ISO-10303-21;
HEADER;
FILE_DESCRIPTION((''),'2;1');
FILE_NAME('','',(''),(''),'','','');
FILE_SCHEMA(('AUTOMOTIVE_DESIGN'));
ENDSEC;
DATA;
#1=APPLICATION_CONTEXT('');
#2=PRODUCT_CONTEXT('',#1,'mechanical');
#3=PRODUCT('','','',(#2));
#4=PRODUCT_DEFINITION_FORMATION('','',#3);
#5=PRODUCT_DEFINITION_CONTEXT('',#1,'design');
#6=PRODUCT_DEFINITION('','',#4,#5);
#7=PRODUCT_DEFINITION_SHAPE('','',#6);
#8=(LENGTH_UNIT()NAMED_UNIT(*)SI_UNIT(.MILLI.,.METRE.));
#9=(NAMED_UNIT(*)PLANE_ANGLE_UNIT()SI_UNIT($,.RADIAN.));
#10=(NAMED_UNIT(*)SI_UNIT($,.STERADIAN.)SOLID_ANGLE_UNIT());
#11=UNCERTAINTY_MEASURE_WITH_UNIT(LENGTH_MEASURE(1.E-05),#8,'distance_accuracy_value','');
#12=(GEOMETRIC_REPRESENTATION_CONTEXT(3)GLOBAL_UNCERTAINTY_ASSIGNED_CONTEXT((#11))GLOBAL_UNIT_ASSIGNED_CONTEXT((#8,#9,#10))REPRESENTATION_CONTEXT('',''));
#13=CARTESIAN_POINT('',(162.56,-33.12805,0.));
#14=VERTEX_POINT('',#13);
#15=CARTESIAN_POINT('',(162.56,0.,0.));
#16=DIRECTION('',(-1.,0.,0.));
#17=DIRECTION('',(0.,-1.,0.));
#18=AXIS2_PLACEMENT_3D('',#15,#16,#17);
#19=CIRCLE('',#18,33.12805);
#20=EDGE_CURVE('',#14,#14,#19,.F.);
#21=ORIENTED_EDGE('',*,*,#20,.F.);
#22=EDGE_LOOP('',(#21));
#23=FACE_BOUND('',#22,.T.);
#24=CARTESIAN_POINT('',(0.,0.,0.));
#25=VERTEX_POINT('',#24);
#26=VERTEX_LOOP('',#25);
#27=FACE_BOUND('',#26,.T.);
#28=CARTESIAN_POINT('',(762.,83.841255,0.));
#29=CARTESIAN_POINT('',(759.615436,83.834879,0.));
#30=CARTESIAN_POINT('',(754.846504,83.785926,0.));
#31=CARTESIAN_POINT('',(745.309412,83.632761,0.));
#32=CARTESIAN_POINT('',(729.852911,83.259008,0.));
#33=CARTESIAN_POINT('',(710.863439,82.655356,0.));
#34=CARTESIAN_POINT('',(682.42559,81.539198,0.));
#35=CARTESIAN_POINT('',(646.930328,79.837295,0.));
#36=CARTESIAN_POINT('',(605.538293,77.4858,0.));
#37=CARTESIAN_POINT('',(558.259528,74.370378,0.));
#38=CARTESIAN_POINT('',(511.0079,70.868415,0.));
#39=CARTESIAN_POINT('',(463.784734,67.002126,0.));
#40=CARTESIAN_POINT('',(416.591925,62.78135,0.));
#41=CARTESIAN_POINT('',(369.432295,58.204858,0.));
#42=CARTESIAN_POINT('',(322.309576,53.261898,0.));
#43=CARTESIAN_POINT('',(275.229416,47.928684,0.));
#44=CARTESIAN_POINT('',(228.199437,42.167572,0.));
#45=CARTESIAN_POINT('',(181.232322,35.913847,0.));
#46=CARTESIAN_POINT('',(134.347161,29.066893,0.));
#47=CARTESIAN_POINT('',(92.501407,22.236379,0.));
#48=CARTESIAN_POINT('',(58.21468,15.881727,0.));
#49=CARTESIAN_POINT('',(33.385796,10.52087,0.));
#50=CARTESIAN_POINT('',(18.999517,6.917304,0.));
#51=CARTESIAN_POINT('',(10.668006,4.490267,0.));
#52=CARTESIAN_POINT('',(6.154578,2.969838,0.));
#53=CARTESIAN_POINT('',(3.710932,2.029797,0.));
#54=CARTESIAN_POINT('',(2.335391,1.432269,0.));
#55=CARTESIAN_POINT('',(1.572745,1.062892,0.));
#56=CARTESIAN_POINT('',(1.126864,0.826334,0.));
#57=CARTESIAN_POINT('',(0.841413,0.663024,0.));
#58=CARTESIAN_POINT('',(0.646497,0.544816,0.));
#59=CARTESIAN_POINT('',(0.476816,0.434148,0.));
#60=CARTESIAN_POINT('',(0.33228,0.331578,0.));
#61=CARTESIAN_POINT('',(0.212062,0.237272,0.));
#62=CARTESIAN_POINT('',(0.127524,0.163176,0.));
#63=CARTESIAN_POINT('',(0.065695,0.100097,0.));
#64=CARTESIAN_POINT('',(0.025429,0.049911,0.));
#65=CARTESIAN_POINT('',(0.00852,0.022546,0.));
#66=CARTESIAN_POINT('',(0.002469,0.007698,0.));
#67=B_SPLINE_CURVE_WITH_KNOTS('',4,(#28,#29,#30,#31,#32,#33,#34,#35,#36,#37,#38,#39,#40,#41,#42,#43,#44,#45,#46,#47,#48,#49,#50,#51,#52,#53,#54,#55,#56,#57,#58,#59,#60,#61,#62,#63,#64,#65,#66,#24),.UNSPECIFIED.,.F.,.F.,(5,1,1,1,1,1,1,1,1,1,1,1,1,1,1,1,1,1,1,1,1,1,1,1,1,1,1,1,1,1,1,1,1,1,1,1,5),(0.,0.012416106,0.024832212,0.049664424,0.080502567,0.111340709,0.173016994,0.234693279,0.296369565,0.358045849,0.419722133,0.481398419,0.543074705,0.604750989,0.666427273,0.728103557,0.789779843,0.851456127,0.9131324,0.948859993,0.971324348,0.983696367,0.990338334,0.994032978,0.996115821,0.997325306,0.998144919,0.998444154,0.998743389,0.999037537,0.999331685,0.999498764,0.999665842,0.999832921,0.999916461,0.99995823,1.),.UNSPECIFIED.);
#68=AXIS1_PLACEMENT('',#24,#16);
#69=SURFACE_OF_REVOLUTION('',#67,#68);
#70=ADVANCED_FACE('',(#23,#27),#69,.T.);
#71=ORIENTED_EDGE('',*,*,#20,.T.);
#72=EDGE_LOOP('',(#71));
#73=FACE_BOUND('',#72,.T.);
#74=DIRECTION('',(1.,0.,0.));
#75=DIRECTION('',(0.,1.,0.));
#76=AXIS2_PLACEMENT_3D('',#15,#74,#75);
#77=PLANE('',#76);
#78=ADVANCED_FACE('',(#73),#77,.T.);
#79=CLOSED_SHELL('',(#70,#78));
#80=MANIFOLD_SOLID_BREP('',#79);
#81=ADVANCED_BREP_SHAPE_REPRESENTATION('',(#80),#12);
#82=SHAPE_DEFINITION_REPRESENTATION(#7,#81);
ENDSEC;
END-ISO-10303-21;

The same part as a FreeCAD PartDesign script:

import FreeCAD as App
import Part
import Sketcher
from FreeCAD import Vector
Q = App.Units.Quantity

doc = App.newDocument("Part")
body = doc.addObject("PartDesign::Body", "Body")

sketch1 = body.newObject("Sketcher::SketchObject", "Sketch")
sketch1.AttachmentSupport = (doc.getObject("XY_Plane"), [""])
sketch1.MapMode = "FlatFace"
sketch1.addGeometry(Part.LineSegment(Vector(762, 0, 0), Vector(762, 83.841255, 0)), False)
sketch1.addGeometry(Part.BSplineCurve([Vector(0, 0, 0), Vector(0.002469, 0.007698, 0), Vector(0.00852, 0.022546, 0), Vector(0.025429, 0.049911, 0), Vector(0.065695, 0.100097, 0), Vector(0.127524, 0.163176, 0), Vector(0.212062, 0.237272, 0), Vector(0.33228, 0.331578, 0), Vector(0.476816, 0.434148, 0), Vector(0.646497, 0.544816, 0), Vector(0.841413, 0.663024, 0), Vector(1.126864, 0.826334, 0), Vector(1.572745, 1.062892, 0), Vector(2.335391, 1.432269, 0), Vector(3.710932, 2.029797, 0), Vector(6.154578, 2.969838, 0), Vector(10.668006, 4.490267, 0), Vector(18.999517, 6.917304, 0), Vector(33.385796, 10.52087, 0), Vector(58.21468, 15.881727, 0), Vector(92.501407, 22.236379, 0), Vector(134.347161, 29.066893, 0), Vector(181.232322, 35.913847, 0), Vector(228.199437, 42.167572, 0), Vector(275.229416, 47.928684, 0), Vector(322.309576, 53.261898, 0), Vector(369.432295, 58.204858, 0), Vector(416.591925, 62.78135, 0), Vector(463.784734, 67.002126, 0), Vector(511.0079, 70.868415, 0), Vector(558.259528, 74.370378, 0), Vector(605.538293, 77.4858, 0), Vector(646.930328, 79.837295, 0), Vector(682.42559, 81.539198, 0), Vector(710.863439, 82.655356, 0), Vector(729.852911, 83.259008, 0), Vector(745.309412, 83.632761, 0), Vector(754.846504, 83.785926, 0), Vector(759.615436, 83.834879, 0), Vector(762, 83.841255, 0)], [5, 1, 1, 1, 1, 1, 1, 1, 1, 1, 1, 1, 1, 1, 1, 1, 1, 1, 1, 1, 1, 1, 1, 1, 1, 1, 1, 1, 1, 1, 1, 1, 1, 1, 1, 1, 5], [0, 0.00004177, 0.000083539, 0.000167079, 0.000334158, 0.000501236, 0.000668315, 0.000962463, 0.001256611, 0.001555846, 0.001855081, 0.002674694, 0.003884179, 0.005967022, 0.009661666, 0.016303633, 0.028675652, 0.051140007, 0.0868676, 0.148543873, 0.210220157, 0.271896443, 0.333572727, 0.395249011, 0.456925295, 0.518601581, 0.580277867, 0.641954151, 0.703630435, 0.765306721, 0.826983006, 0.888659291, 0.919497433, 0.950335576, 0.975167788, 0.987583894, 1], False, 4, [1, 1, 1, 1, 1, 1, 1, 1, 1, 1, 1, 1, 1, 1, 1, 1, 1, 1, 1, 1, 1, 1, 1, 1, 1, 1, 1, 1, 1, 1, 1, 1, 1, 1, 1, 1, 1, 1, 1, 1], False), False)
sketch1.addGeometry(Part.LineSegment(Vector(0, 0, 0), Vector(762, 0, 0)), False)
sketch1.addConstraint(Sketcher.Constraint("Block", 1))
sketch1.addConstraint(Sketcher.Constraint("Coincident", 0, 2, 1, 2))
sketch1.addConstraint(Sketcher.Constraint("Coincident", 1, 1, 2, 1))
sketch1.addConstraint(Sketcher.Constraint("Coincident", 2, 2, 0, 1))
sketch1.addConstraint(Sketcher.Constraint("Vertical", 0))
sketch1.addConstraint(Sketcher.Constraint("Horizontal", 2))
revolution = body.newObject("PartDesign::Revolution", "Revolution")
revolution.Profile = sketch1
revolution.ReferenceAxis = (sketch1, ["H_Axis"])
revolution.Angle = 360

sketch2 = body.newObject("Sketcher::SketchObject", "Sketch001")
sketch2.AttachmentSupport = (doc.getObject("YZ_Plane"), [""])
sketch2.MapMode = "FlatFace"
sketch2.AttachmentOffset = App.Placement(Vector(0, 0, 30 * 25.4), App.Rotation())
sketch2.addGeometry(Part.Circle(Vector(0, 0, 0), Vector(0, 0, 1), 84), False)
sketch2.addConstraint(Sketcher.Constraint("Coincident", 0, 3, -1, 1))
sketch2.addConstraint(Sketcher.Constraint("Diameter", 0, 167.682509))
pad1 = body.newObject("PartDesign::Pad", "Pad")
pad1.Profile = sketch2
pad1.Length = Q("0.4 in")

sketch3 = body.newObject("Sketcher::SketchObject", "Sketch002")
sketch3.AttachmentSupport = (doc.getObject("YZ_Plane"), [""])
sketch3.MapMode = "FlatFace"
sketch3.AttachmentOffset = App.Placement(Vector(0, 0, 6.4 * 25.4), App.Rotation())
sketch3.addGeometry(Part.Circle(Vector(0, 0, 0), Vector(0, 0, 1), 117), False)
sketch3.addConstraint(Sketcher.Constraint("Coincident", 0, 3, -1, 1))
sketch3.addConstraint(Sketcher.Constraint("Diameter", 0, 234.922505))
pocket1 = body.newObject("PartDesign::Pocket", "Pocket")
pocket1.Profile = sketch3
pocket1.Length = Q("26.85 in")
pocket1.Reversed = True

doc.recompute()
